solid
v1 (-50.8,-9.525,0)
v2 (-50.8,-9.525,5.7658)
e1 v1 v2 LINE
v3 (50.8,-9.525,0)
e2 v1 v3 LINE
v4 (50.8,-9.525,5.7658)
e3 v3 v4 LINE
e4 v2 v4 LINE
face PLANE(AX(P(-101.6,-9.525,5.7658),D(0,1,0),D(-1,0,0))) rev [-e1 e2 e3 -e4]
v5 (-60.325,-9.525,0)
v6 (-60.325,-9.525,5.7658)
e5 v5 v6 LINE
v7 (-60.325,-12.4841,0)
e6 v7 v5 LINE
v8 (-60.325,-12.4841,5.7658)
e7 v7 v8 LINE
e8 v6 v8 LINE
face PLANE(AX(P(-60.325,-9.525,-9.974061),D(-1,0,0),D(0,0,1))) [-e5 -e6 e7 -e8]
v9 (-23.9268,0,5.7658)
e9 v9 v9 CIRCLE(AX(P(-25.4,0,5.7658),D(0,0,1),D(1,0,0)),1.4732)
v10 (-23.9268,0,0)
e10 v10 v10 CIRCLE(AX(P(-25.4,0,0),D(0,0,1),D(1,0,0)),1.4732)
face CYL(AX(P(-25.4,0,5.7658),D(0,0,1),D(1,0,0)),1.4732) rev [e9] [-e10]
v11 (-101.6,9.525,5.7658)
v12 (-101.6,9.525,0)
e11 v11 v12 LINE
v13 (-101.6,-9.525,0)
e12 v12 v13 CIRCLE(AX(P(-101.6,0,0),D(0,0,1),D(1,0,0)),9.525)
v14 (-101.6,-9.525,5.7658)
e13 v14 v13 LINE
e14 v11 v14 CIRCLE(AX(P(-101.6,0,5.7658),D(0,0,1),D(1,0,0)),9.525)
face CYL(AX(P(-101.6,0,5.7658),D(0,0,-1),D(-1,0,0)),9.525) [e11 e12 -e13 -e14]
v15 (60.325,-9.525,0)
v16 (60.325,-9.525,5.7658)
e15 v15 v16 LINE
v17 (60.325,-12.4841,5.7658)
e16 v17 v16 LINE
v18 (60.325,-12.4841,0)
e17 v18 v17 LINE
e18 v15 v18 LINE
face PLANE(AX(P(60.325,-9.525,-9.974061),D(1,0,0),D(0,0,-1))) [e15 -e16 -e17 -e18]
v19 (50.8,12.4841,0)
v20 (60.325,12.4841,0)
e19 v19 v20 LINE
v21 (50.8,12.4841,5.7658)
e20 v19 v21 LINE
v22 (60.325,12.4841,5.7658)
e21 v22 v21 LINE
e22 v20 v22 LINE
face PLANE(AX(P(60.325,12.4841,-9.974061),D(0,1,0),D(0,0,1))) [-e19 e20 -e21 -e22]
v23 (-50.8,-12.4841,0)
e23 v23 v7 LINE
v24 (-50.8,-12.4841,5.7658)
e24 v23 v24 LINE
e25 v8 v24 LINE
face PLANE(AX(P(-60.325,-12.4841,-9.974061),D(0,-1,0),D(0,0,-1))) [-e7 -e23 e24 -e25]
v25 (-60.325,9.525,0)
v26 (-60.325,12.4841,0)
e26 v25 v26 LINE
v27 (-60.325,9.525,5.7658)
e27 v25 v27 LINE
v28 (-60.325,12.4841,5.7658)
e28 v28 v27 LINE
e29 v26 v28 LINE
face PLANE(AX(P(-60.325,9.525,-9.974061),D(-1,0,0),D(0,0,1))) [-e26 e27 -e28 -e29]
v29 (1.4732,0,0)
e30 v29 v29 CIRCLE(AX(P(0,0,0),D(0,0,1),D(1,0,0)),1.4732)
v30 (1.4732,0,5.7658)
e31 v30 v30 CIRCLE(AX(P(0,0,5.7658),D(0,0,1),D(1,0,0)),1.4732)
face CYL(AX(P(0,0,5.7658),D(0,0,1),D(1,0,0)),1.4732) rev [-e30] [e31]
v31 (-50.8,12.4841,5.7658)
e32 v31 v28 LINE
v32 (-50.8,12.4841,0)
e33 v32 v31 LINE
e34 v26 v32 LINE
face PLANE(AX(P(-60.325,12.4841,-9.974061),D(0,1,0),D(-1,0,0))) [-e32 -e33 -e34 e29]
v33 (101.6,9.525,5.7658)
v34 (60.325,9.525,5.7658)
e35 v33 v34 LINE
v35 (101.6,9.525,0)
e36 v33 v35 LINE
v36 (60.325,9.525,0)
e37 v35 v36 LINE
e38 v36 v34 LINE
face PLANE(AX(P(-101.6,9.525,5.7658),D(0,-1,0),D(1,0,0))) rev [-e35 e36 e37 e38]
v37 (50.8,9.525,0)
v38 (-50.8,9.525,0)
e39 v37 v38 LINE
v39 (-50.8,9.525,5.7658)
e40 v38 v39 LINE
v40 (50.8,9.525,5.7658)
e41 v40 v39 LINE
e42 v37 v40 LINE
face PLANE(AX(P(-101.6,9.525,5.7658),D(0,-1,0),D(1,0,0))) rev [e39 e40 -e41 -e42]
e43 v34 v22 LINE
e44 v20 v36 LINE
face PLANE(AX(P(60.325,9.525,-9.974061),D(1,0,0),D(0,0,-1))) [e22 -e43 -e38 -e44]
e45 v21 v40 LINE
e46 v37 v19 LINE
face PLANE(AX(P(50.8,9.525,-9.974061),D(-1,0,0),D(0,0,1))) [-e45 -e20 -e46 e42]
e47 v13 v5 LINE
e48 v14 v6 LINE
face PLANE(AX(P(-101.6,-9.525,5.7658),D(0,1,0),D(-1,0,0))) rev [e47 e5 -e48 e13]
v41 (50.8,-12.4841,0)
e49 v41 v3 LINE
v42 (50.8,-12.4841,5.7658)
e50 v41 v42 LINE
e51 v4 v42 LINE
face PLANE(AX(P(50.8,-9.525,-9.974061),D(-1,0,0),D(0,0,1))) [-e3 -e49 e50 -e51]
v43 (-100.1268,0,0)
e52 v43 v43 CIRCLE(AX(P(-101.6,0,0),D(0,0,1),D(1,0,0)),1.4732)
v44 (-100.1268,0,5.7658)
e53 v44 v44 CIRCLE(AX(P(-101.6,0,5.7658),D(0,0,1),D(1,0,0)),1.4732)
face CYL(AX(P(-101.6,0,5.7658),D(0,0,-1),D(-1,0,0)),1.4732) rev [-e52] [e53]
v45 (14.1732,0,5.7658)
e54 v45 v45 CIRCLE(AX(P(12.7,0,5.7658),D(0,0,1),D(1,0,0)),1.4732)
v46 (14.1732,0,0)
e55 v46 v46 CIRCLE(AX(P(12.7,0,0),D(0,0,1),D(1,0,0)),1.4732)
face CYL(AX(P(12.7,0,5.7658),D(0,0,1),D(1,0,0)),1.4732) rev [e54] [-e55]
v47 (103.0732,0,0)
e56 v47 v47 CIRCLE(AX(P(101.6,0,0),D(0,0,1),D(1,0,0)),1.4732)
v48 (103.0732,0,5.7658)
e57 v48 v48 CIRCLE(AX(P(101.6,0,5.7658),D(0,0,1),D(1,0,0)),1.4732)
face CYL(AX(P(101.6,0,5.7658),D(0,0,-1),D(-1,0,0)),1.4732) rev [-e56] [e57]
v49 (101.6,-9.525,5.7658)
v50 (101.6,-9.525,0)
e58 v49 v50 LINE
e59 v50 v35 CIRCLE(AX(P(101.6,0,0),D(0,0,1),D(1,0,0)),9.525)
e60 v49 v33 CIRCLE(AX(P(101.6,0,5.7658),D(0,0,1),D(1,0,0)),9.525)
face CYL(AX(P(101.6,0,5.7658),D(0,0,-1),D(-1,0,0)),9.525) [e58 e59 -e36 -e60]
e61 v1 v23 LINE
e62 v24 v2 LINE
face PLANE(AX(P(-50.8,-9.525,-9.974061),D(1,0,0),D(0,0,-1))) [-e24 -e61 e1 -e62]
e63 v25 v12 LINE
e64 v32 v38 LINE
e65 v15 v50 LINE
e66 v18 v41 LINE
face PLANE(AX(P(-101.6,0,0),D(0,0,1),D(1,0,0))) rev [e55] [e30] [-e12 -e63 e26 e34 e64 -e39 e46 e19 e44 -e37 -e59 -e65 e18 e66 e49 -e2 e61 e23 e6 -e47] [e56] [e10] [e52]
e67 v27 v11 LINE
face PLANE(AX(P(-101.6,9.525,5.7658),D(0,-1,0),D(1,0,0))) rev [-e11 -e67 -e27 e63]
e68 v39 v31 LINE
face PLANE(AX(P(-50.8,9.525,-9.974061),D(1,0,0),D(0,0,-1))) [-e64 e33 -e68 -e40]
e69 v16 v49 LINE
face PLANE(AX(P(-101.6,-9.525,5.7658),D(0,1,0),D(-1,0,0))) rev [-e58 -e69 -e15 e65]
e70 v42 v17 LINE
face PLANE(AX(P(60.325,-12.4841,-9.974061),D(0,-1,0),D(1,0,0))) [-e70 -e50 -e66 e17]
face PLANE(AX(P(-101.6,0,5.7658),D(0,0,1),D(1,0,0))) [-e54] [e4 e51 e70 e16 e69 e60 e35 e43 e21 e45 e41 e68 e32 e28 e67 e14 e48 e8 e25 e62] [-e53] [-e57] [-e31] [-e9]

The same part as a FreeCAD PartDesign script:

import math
import FreeCAD as App
import Part
import Sketcher

V = App.Vector
Q = App.Units.Quantity

doc = App.newDocument("Part")
body = doc.addObject("PartDesign::Body", "Body")

# Sketch on XY plane
sketch1 = body.newObject("Sketcher::SketchObject", "Sketch")
sketch1.AttachmentSupport = (doc.getObject("XY_Plane"), [""])
sketch1.MapMode = "FlatFace"
sketch1.addGeometry([
    Part.LineSegment(V(101.6, 9.5, 0), V(-101.6, 9.5, 0)),  # 0
    Part.ArcOfCircle(Part.Circle(V(-101.6, 0, 0), V(0, 0, 1), 9.5), math.radians(90), math.radians(270)),  # 1
    Part.LineSegment(V(-101.6, -9.5, 0), V(101.6, -9.5, 0)),  # 2
    Part.ArcOfCircle(Part.Circle(V(101.6, 0, 0), V(0, 0, 1), 9.5), math.radians(-90), math.radians(90)),  # 3
    Part.Circle(V(101.6, 0, 0), V(0, 0, 1), 1.5),  # 4
    Part.Circle(V(-101.6, 0, 0), V(0, 0, 1), 1.5),  # 5
], False)
sketch1.addConstraint([
    Sketcher.Constraint("Tangent", 0, 2, 1, 1),
    Sketcher.Constraint("Tangent", 1, 2, 2, 1),
    Sketcher.Constraint("Tangent", 2, 2, 3, 1),
    Sketcher.Constraint("Tangent", 3, 2, 0, 1),
    Sketcher.Constraint("Horizontal", 0),
    Sketcher.Constraint("Horizontal", 2),
    Sketcher.Constraint("Coincident", 4, 3, 3, 3),
    Sketcher.Constraint("Coincident", 5, 3, 1, 3),
    Sketcher.Constraint("Equal", 4, 5),
    Sketcher.Constraint("Symmetric", 1, 3, 3, 3, -1, 1),
    Sketcher.Constraint("DistanceX", 0, 2, 0, 1, Q("8 in")),
    Sketcher.Constraint("Diameter", 4, Q("0.116 in")),
    Sketcher.Constraint("Radius", 1, Q("0.375 in")),
])
pad1 = body.newObject("PartDesign::Pad", "Pad")
pad1.Profile = sketch1
pad1.Length = Q("0.227 in")

# Sketch on XY plane
sketch2 = body.newObject("Sketcher::SketchObject", "Sketch001")
sketch2.AttachmentSupport = (doc.getObject("XY_Plane"), [""])
sketch2.MapMode = "FlatFace"
sketch2.AttachmentOffset = App.Placement(V(0, 0, 0.227 * 25.4), App.Rotation())
sketch2.addGeometry([
    Part.Circle(V(-25.4, 0, 0), V(0, 0, 1), 1.5),
    Part.Circle(V(12.7, 0, 0), V(0, 0, 1), 1.5),
    Part.Circle(V(0, 0, 0), V(0, 0, 1), 1.5),
], False)
sketch2.addConstraint([
    Sketcher.Constraint("Coincident", 2, 3, -1, 1),
    Sketcher.Constraint("Equal", 0, 1),
    Sketcher.Constraint("Equal", 1, 2),
    Sketcher.Constraint("PointOnObject", 0, 3, -1),
    Sketcher.Constraint("PointOnObject", 1, 3, -1),
    Sketcher.Constraint("Diameter", 0, Q("0.116 in")),
    Sketcher.Constraint("DistanceX", 0, 3, -1, 1, Q("1 in")),
    Sketcher.Constraint("DistanceX", -1, 1, 1, 3, Q("0.5 in")),
])
doc.recompute()
hole = body.newObject("PartDesign::Hole", "Hole")
hole.Profile = sketch2
hole.ThreadType = "None"
hole.Diameter = Q("0.116 in")
hole.DepthType = "ThroughAll"

# Sketch on XY plane
sketch3 = body.newObject("Sketcher::SketchObject", "Sketch002")
sketch3.AttachmentSupport = (doc.getObject("XY_Plane"), [""])
sketch3.MapMode = "FlatFace"
sketch3.AttachmentOffset = App.Placement(V(0, 0, 0.227 * 25.4), App.Rotation())
sketch3.addGeometry([
    Part.LineSegment(V(50.8, 12.5, 0), V(50.8, 9.5, 0)),  # 0
    Part.LineSegment(V(50.8, 9.5, 0), V(60.3, 9.5, 0)),  # 1
    Part.LineSegment(V(60.3, 9.5, 0), V(60.3, 12.5, 0)),  # 2
    Part.LineSegment(V(60.3, 12.5, 0), V(50.8, 12.5, 0)),  # 3
    Part.LineSegment(V(-60.3, 12.5, 0), V(-60.3, 9.5, 0)),  # 4
    Part.LineSegment(V(-60.3, 9.5, 0), V(-50.8, 9.5, 0)),  # 5
    Part.LineSegment(V(-50.8, 9.5, 0), V(-50.8, 12.5, 0)),  # 6
    Part.LineSegment(V(-50.8, 12.5, 0), V(-60.3, 12.5, 0)),  # 7
    Part.LineSegment(V(-60.3, -9.5, 0), V(-60.3, -12.5, 0)),  # 8
    Part.LineSegment(V(-60.3, -12.5, 0), V(-50.8, -12.5, 0)),  # 9
    Part.LineSegment(V(-50.8, -12.5, 0), V(-50.8, -9.5, 0)),  # 10
    Part.LineSegment(V(-50.8, -9.5, 0), V(-60.3, -9.5, 0)),  # 11
    Part.LineSegment(V(50.8, -9.5, 0), V(50.8, -12.5, 0)),  # 12
    Part.LineSegment(V(50.8, -12.5, 0), V(60.3, -12.5, 0)),  # 13
    Part.LineSegment(V(60.3, -12.5, 0), V(60.3, -9.5, 0)),  # 14
    Part.LineSegment(V(60.3, -9.5, 0), V(50.8, -9.5, 0)),  # 15
], False)
sketch3.addConstraint([
    Sketcher.Constraint("Coincident", 0, 2, 1, 1),
    Sketcher.Constraint("Coincident", 1, 2, 2, 1),
    Sketcher.Constraint("Coincident", 2, 2, 3, 1),
    Sketcher.Constraint("Coincident", 3, 2, 0, 1),
    Sketcher.Constraint("Coincident", 4, 2, 5, 1),
    Sketcher.Constraint("Coincident", 5, 2, 6, 1),
    Sketcher.Constraint("Coincident", 6, 2, 7, 1),
    Sketcher.Constraint("Coincident", 7, 2, 4, 1),
    Sketcher.Constraint("Coincident", 8, 2, 9, 1),
    Sketcher.Constraint("Coincident", 9, 2, 10, 1),
    Sketcher.Constraint("Coincident", 10, 2, 11, 1),
    Sketcher.Constraint("Coincident", 11, 2, 8, 1),
    Sketcher.Constraint("Coincident", 12, 2, 13, 1),
    Sketcher.Constraint("Coincident", 13, 2, 14, 1),
    Sketcher.Constraint("Coincident", 14, 2, 15, 1),
    Sketcher.Constraint("Coincident", 15, 2, 12, 1),
    Sketcher.Constraint("Vertical", 0),
    Sketcher.Constraint("Horizontal", 1),
    Sketcher.Constraint("Vertical", 2),
    Sketcher.Constraint("Horizontal", 3),
    Sketcher.Constraint("Vertical", 4),
    Sketcher.Constraint("Horizontal", 5),
    Sketcher.Constraint("Vertical", 6),
    Sketcher.Constraint("Horizontal", 7),
    Sketcher.Constraint("Vertical", 8),
    Sketcher.Constraint("Horizontal", 9),
    Sketcher.Constraint("Vertical", 10),
    Sketcher.Constraint("Horizontal", 11),
    Sketcher.Constraint("Vertical", 12),
    Sketcher.Constraint("Horizontal", 13),
    Sketcher.Constraint("Vertical", 14),
    Sketcher.Constraint("Horizontal", 15),
    Sketcher.Constraint("Symmetric", 2, 2, 8, 2, -1, 1),
    Sketcher.Constraint("Symmetric", 0, 2, 10, 2, -1, 1),
    Sketcher.Constraint("Symmetric", 6, 2, 12, 2, -1, 1),
    Sketcher.Constraint("Symmetric", 4, 2, 14, 2, -1, 1),
    Sketcher.Constraint("Symmetric", 1, 2, 4, 2, -2),
    Sketcher.Constraint("Symmetric", 3, 2, 6, 2, -2),
    Sketcher.Constraint("DistanceX", -1, 1, 0, 2, Q("2 in")),
    Sketcher.Constraint("DistanceX", 1, 1, 1, 2, Q("0.375 in")),
    Sketcher.Constraint("DistanceY", 10, 2, 5, 2, Q("0.75 in")),
    Sketcher.Constraint("DistanceY", 0, 2, 0, 1, Q("0.1165 in")),
])
pad2 = body.newObject("PartDesign::Pad", "Pad001")
pad2.Profile = sketch3
pad2.Length = Q("0.227 in")
pad2.Reversed = True

doc.recompute()
